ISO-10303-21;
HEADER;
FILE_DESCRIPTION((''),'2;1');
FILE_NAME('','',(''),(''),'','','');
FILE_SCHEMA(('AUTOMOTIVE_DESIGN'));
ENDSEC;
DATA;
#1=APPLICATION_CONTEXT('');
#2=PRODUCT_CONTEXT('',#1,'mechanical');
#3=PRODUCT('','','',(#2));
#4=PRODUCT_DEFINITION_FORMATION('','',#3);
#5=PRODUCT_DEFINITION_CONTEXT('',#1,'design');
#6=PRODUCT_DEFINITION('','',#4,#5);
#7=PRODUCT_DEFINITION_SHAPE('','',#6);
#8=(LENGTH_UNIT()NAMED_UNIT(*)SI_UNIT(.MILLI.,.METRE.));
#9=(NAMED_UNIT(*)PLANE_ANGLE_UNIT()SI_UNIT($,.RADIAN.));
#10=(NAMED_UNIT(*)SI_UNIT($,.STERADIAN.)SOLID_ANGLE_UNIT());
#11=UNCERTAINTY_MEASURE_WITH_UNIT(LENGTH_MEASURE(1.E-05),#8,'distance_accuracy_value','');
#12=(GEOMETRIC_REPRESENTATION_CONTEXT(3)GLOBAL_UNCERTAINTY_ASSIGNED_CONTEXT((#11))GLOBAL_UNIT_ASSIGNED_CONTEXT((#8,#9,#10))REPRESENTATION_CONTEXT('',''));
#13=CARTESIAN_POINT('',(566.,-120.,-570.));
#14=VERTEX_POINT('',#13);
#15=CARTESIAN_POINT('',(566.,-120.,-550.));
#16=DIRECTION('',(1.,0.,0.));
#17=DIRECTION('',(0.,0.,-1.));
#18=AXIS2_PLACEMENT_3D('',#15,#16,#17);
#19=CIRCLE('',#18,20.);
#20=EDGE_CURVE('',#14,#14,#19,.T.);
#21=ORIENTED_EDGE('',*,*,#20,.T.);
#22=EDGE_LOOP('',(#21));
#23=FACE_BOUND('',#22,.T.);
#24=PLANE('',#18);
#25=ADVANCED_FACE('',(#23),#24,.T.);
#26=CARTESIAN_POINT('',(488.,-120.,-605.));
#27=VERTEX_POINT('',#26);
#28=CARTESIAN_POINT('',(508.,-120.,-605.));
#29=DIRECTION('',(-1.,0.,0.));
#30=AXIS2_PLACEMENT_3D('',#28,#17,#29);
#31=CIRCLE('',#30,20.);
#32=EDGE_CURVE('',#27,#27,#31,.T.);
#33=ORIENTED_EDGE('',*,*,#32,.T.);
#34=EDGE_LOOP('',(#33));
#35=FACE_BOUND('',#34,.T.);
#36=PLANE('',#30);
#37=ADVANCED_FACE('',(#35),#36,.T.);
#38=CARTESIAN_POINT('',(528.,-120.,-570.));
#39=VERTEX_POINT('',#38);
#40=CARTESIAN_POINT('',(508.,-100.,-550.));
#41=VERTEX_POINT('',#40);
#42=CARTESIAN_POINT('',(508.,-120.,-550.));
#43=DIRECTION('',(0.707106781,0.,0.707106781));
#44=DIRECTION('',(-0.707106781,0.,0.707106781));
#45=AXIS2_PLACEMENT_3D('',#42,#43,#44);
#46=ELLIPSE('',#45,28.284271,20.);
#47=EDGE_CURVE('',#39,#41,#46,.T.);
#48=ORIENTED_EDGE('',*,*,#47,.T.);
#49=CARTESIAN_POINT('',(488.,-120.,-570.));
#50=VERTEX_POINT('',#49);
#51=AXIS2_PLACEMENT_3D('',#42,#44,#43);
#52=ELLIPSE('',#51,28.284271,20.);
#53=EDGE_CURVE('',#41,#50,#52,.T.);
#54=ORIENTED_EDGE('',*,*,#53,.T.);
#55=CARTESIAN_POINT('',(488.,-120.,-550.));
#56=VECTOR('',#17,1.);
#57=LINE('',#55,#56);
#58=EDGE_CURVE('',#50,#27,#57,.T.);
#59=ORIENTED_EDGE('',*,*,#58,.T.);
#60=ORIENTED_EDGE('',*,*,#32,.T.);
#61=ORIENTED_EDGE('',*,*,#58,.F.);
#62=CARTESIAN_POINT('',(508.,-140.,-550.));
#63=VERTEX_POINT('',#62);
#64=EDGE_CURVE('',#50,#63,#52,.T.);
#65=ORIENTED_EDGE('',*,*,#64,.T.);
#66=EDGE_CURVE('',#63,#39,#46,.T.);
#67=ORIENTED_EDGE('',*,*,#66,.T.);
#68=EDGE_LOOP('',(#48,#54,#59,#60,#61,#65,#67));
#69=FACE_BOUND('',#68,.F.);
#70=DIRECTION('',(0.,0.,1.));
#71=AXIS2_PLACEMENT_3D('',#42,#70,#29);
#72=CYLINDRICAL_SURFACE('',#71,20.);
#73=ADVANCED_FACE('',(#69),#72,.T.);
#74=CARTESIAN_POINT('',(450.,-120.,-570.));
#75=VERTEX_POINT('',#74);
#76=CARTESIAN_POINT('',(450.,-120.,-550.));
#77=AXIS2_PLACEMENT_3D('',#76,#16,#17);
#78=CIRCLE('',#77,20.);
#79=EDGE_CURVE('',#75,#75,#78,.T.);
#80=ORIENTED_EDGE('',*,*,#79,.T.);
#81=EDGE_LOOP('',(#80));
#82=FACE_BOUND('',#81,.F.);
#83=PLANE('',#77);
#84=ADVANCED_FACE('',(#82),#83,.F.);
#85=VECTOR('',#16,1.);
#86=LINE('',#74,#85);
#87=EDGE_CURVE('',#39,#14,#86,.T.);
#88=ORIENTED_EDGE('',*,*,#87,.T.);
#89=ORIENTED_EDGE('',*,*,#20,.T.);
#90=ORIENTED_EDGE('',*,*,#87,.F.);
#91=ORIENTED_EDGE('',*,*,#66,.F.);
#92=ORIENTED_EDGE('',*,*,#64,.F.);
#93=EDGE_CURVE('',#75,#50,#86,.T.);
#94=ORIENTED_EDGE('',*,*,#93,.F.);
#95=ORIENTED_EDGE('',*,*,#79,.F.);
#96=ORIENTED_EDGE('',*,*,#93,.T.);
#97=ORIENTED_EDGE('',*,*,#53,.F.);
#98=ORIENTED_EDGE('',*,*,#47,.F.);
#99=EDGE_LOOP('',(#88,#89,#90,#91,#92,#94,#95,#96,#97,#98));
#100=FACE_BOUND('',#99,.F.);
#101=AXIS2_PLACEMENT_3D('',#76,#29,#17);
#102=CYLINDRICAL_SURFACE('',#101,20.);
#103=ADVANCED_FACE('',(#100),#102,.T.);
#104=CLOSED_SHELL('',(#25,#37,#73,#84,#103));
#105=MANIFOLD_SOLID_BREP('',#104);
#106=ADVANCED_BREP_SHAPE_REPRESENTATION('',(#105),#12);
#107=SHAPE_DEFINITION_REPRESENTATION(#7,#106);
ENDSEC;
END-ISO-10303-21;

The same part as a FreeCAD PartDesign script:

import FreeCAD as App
import Part
import Sketcher

V = App.Vector
Q = App.Units.Quantity

doc = App.newDocument("Part")
body = doc.addObject("PartDesign::Body", "Body")

# Sketch on XY plane
sketch1 = doc.addObject("Sketcher::SketchObject", "Sketch")
body.addObject(sketch1)
sketch1.AttachmentSupport = (doc.XY_Plane, [""])
sketch1.MapMode = "FlatFace"
sketch1.addGeometry(Part.Circle(V(0, 0, 0), V(0, 0, 1), 20), False)
sketch1.addConstraint(Sketcher.Constraint("Coincident", 0, 3, -1, 1))
sketch1.addConstraint(Sketcher.Constraint("Diameter", 0, Q("40 mm")))
pad1 = doc.addObject("PartDesign::Pad", "Pad")
body.addObject(pad1)
pad1.Profile = sketch1
pad1.Length = 116
body2 = doc.addObject("PartDesign::Body", "Body001")

# Sketch on YZ plane
sketch2 = doc.addObject("Sketcher::SketchObject", "Sketch001")
body2.addObject(sketch2)
sketch2.AttachmentSupport = (doc.getObject("YZ_Plane001"), [""])
sketch2.MapMode = "FlatFace"
sketch2.addGeometry(Part.Circle(V(0, 58, 0), V(0, 0, 1), 20), False)
sketch2.addConstraint(Sketcher.Constraint("PointOnObject", 0, 3, -2))
sketch2.addConstraint(Sketcher.Constraint("Diameter", 0, Q("40 mm")))
sketch2.addConstraint(Sketcher.Constraint("DistanceY", -1, 1, 0, 3, Q("58 mm")))
pad2 = doc.addObject("PartDesign::Pad", "Pad001")
body2.addObject(pad2)
pad2.Profile = sketch2
pad2.Length = 55
doc.recompute()

boolean = doc.addObject("PartDesign::Boolean", "Boolean")
body2.addObject(boolean)
boolean.Type = "Fuse"
boolean.addObjects([body])
body3 = doc.addObject("PartDesign::Body", "Body002")
doc.recompute()

body2.Placement = App.Placement(V(450, -120, -550), App.Rotation(V(0, 1, 0), 90))
boolean2 = doc.addObject("PartDesign::Boolean", "Boolean001")
body3.addObject(boolean2)
boolean2.Type = "Fuse"
boolean2.addObjects([body2])

doc.recompute()
